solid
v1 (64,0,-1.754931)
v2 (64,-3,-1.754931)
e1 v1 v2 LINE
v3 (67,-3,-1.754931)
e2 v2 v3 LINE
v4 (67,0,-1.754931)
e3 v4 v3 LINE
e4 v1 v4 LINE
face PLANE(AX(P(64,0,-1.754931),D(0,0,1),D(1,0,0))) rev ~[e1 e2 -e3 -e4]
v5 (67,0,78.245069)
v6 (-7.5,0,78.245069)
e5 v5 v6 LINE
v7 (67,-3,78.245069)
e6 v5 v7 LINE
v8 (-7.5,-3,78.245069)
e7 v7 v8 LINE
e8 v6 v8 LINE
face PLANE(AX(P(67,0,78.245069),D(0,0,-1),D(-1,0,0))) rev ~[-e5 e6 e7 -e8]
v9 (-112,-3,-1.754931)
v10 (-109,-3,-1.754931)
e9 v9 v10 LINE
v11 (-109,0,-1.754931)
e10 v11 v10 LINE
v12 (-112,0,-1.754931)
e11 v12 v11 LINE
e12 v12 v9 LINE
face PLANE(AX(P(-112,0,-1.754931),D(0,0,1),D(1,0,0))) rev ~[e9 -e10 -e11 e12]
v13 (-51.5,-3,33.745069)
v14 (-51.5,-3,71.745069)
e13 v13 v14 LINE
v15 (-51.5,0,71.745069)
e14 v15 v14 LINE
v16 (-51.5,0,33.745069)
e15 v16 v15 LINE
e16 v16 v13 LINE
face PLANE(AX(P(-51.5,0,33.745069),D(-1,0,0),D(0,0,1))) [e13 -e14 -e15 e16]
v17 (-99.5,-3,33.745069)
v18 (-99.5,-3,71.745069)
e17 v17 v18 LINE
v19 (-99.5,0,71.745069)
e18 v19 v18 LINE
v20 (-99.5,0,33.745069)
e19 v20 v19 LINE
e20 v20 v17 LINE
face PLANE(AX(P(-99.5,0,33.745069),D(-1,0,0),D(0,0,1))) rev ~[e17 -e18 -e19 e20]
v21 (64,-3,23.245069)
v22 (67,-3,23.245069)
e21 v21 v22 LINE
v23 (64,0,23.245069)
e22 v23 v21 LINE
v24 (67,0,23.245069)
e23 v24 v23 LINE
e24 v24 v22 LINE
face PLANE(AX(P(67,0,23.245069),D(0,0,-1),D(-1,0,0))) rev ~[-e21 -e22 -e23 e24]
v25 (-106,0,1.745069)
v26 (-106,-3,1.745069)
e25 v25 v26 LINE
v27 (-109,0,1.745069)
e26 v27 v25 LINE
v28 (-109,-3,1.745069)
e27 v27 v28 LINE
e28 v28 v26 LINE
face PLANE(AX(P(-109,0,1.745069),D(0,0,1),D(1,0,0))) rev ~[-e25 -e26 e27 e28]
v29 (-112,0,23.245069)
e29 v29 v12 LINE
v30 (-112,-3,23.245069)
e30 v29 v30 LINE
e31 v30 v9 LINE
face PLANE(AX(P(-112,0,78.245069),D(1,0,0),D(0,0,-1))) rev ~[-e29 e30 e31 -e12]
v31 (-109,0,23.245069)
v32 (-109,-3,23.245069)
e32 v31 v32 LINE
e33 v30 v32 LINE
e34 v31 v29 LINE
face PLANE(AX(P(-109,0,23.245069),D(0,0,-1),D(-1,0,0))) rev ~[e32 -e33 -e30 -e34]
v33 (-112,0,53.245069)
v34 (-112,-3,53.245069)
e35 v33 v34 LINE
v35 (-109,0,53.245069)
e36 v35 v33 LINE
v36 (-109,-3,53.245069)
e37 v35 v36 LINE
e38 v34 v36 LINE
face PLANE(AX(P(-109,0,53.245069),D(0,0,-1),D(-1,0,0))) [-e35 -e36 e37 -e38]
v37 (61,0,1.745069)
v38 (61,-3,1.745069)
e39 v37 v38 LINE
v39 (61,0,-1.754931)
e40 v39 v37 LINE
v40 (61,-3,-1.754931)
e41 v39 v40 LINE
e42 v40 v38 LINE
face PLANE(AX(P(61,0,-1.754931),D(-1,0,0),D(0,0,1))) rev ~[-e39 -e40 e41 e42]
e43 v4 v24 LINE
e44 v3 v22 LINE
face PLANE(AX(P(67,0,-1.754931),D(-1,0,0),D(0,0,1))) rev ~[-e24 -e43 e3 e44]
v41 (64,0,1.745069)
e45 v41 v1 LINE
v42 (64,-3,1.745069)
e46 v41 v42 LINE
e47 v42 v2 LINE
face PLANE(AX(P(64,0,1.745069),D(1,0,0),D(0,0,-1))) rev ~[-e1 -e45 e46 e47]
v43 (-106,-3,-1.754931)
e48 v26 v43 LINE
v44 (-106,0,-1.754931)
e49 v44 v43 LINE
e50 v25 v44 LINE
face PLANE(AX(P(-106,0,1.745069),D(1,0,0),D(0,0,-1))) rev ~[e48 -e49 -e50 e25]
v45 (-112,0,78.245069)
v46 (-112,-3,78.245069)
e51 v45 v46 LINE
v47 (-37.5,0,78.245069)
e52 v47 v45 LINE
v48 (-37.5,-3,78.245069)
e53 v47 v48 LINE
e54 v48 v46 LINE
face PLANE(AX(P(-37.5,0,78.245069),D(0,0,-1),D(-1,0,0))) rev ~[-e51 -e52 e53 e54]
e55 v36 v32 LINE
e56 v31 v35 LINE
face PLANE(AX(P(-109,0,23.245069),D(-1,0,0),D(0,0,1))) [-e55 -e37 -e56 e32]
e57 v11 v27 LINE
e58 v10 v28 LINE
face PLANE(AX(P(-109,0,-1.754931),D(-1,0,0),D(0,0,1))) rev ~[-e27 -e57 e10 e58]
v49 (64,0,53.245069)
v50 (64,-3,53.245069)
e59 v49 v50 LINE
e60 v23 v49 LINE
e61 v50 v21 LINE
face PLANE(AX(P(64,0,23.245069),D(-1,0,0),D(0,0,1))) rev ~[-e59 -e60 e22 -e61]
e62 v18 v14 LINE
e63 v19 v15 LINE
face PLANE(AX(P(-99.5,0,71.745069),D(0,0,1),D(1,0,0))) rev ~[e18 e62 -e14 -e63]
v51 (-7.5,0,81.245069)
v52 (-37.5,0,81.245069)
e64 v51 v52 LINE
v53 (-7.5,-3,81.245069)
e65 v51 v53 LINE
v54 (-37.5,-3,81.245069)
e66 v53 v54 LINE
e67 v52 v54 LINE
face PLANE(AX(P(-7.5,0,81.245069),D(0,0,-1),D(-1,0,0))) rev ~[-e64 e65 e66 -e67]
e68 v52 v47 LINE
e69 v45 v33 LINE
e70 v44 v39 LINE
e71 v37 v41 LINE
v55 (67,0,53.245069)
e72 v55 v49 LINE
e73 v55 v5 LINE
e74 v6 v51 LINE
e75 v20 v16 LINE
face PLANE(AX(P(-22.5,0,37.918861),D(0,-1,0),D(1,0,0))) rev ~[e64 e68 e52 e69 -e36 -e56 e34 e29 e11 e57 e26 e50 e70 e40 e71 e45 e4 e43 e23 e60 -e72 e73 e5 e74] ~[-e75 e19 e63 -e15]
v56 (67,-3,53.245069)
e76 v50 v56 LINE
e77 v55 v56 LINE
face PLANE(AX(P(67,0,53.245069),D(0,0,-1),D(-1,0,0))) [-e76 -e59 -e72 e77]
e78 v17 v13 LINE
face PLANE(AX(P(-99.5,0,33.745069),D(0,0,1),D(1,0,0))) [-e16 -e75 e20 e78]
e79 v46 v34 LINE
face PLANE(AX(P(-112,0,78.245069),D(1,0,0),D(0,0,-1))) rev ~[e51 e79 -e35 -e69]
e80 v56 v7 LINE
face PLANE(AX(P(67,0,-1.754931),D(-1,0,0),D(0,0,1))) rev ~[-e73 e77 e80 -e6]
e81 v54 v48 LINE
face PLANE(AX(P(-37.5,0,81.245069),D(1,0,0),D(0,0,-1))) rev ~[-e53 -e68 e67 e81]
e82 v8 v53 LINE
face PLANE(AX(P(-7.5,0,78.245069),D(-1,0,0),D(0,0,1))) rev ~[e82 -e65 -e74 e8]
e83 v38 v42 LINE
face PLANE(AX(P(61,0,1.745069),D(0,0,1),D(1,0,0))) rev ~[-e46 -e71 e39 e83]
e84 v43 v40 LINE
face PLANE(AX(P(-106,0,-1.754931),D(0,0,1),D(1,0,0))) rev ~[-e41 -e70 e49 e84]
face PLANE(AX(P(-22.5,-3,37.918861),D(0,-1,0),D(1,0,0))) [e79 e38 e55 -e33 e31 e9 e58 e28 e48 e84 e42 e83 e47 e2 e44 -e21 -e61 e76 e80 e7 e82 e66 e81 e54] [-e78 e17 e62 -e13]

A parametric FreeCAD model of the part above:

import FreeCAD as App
import Part
import Sketcher
Q = App.Units.Quantity

doc = App.newDocument("Part")
body = doc.addObject("PartDesign::Body", "Body")

# Sketch on XZ plane
sketch1 = body.newObject("Sketcher::SketchObject", "Sketch")
sketch1.AttachmentSupport = (doc.getObject("XZ_Plane"), [""])
sketch1.MapMode = "FlatFace"
sketch1.addGeometry(Part.LineSegment(App.Vector(-37.5, 78.2, 0), App.Vector(-112, 78.2, 0)), False)
sketch1.addGeometry(Part.LineSegment(App.Vector(-112, 78.2, 0), App.Vector(-112, -1.8, 0)), False)
sketch1.addGeometry(Part.LineSegment(App.Vector(-112, -1.8, 0), App.Vector(-109, -1.8, 0)), False)
sketch1.addGeometry(Part.LineSegment(App.Vector(-109, -1.8, 0), App.Vector(-109, 1.7, 0)), False)
sketch1.addGeometry(Part.LineSegment(App.Vector(-109, 1.7, 0), App.Vector(-106, 1.7, 0)), False)
sketch1.addGeometry(Part.LineSegment(App.Vector(-106, 1.7, 0), App.Vector(-106, -1.8, 0)), False)
sketch1.addGeometry(Part.LineSegment(App.Vector(-106, -1.8, 0), App.Vector(61, -1.8, 0)), False)
sketch1.addGeometry(Part.LineSegment(App.Vector(61, -1.8, 0), App.Vector(61, 1.7, 0)), False)
sketch1.addGeometry(Part.LineSegment(App.Vector(61, 1.7, 0), App.Vector(64, 1.7, 0)), False)
sketch1.addGeometry(Part.LineSegment(App.Vector(64, 1.7, 0), App.Vector(64, -1.8, 0)), False)
sketch1.addGeometry(Part.LineSegment(App.Vector(64, -1.8, 0), App.Vector(67, -1.8, 0)), False)
sketch1.addGeometry(Part.LineSegment(App.Vector(67, -1.8, 0), App.Vector(67, 78.2, 0)), False)
sketch1.addGeometry(Part.LineSegment(App.Vector(67, 78.2, 0), App.Vector(-7.5, 78.2, 0)), False)
sketch1.addGeometry(Part.LineSegment(App.Vector(-7.5, 78.2, 0), App.Vector(-7.5, 81.2, 0)), False)
sketch1.addGeometry(Part.LineSegment(App.Vector(-7.5, 81.2, 0), App.Vector(-37.5, 81.2, 0)), False)
sketch1.addGeometry(Part.LineSegment(App.Vector(-37.5, 81.2, 0), App.Vector(-37.5, 78.2, 0)), False)
sketch1.addGeometry(Part.LineSegment(App.Vector(-51.5, 33.7, 0), App.Vector(-99.5, 33.7, 0)), False)
sketch1.addGeometry(Part.LineSegment(App.Vector(-99.5, 33.7, 0), App.Vector(-99.5, 71.7, 0)), False)
sketch1.addGeometry(Part.LineSegment(App.Vector(-99.5, 71.7, 0), App.Vector(-51.5, 71.7, 0)), False)
sketch1.addGeometry(Part.LineSegment(App.Vector(-51.5, 71.7, 0), App.Vector(-51.5, 33.7, 0)), False)
sketch1.addConstraint(Sketcher.Constraint("Coincident", 0, 2, 1, 1))
sketch1.addConstraint(Sketcher.Constraint("Coincident", 1, 2, 2, 1))
sketch1.addConstraint(Sketcher.Constraint("Coincident", 2, 2, 3, 1))
sketch1.addConstraint(Sketcher.Constraint("Coincident", 3, 2, 4, 1))
sketch1.addConstraint(Sketcher.Constraint("Coincident", 4, 2, 5, 1))
sketch1.addConstraint(Sketcher.Constraint("Coincident", 5, 2, 6, 1))
sketch1.addConstraint(Sketcher.Constraint("Coincident", 6, 2, 7, 1))
sketch1.addConstraint(Sketcher.Constraint("Coincident", 7, 2, 8, 1))
sketch1.addConstraint(Sketcher.Constraint("Coincident", 8, 2, 9, 1))
sketch1.addConstraint(Sketcher.Constraint("Coincident", 9, 2, 10, 1))
sketch1.addConstraint(Sketcher.Constraint("Coincident", 10, 2, 11, 1))
sketch1.addConstraint(Sketcher.Constraint("Coincident", 11, 2, 12, 1))
sketch1.addConstraint(Sketcher.Constraint("Coincident", 12, 2, 13, 1))
sketch1.addConstraint(Sketcher.Constraint("Coincident", 13, 2, 14, 1))
sketch1.addConstraint(Sketcher.Constraint("Coincident", 14, 2, 15, 1))
sketch1.addConstraint(Sketcher.Constraint("Coincident", 15, 2, 0, 1))
sketch1.addConstraint(Sketcher.Constraint("Coincident", 16, 2, 17, 1))
sketch1.addConstraint(Sketcher.Constraint("Coincident", 17, 2, 18, 1))
sketch1.addConstraint(Sketcher.Constraint("Coincident", 18, 2, 19, 1))
sketch1.addConstraint(Sketcher.Constraint("Coincident", 19, 2, 16, 1))
sketch1.addConstraint(Sketcher.Constraint("Horizontal", 0))
sketch1.addConstraint(Sketcher.Constraint("Vertical", 1))
sketch1.addConstraint(Sketcher.Constraint("Horizontal", 2))
sketch1.addConstraint(Sketcher.Constraint("Vertical", 3))
sketch1.addConstraint(Sketcher.Constraint("Horizontal", 4))
sketch1.addConstraint(Sketcher.Constraint("Vertical", 5))
sketch1.addConstraint(Sketcher.Constraint("Horizontal", 6))
sketch1.addConstraint(Sketcher.Constraint("Vertical", 7))
sketch1.addConstraint(Sketcher.Constraint("Horizontal", 8))
sketch1.addConstraint(Sketcher.Constraint("Vertical", 9))
sketch1.addConstraint(Sketcher.Constraint("Horizontal", 10))
sketch1.addConstraint(Sketcher.Constraint("Vertical", 11))
sketch1.addConstraint(Sketcher.Constraint("Horizontal", 12))
sketch1.addConstraint(Sketcher.Constraint("Vertical", 13))
sketch1.addConstraint(Sketcher.Constraint("Horizontal", 14))
sketch1.addConstraint(Sketcher.Constraint("Vertical", 15))
sketch1.addConstraint(Sketcher.Constraint("Horizontal", 16))
sketch1.addConstraint(Sketcher.Constraint("Vertical", 17))
sketch1.addConstraint(Sketcher.Constraint("Horizontal", 18))
sketch1.addConstraint(Sketcher.Constraint("Vertical", 19))
sketch1.addConstraint(Sketcher.Constraint("Horizontal", 2, 2, 5, 2))
sketch1.addConstraint(Sketcher.Constraint("Horizontal", 4, 2, 7, 2))
sketch1.addConstraint(Sketcher.Constraint("Horizontal", 6, 2, 9, 2))
sketch1.addConstraint(Sketcher.Constraint("Horizontal", 0, 2, 11, 2))
sketch1.addConstraint(Sketcher.Constraint("Equal", 2, 4))
sketch1.addConstraint(Sketcher.Constraint("Equal", 4, 8))
sketch1.addConstraint(Sketcher.Constraint("Equal", 8, 10))
sketch1.addConstraint(Sketcher.Constraint("Equal", 0, 12))
sketch1.addConstraint(Sketcher.Constraint("Equal", 10, 13))
sketch1.addConstraint(Sketcher.Constraint("DistanceX", 2, 1, 2, 2, Q("3 mm")))
sketch1.addConstraint(Sketcher.Constraint("DistanceX", 6, 1, 6, 2, Q("167 mm")))
sketch1.addConstraint(Sketcher.Constraint("DistanceX", 14, 2, 14, 1, Q("30 mm")))
sketch1.addConstraint(Sketcher.Constraint("DistanceX", 16, 2, 16, 1, Q("48 mm")))
sketch1.addConstraint(Sketcher.Constraint("DistanceY", 1, 2, 1, 1, Q("80 mm")))
sketch1.addConstraint(Sketcher.Constraint("DistanceY", 17, 1, 17, 2, Q("38 mm")))
sketch1.addConstraint(Sketcher.Constraint("DistanceY", 3, 1, 3, 2, Q("3.5 mm")))
sketch1.addConstraint(Sketcher.Constraint("DistanceX", 0, 2, -1, 1, Q("112 mm")))
sketch1.addConstraint(Sketcher.Constraint("DistanceY", 4, 2, 16, 2, Q("32 mm")))
sketch1.addConstraint(Sketcher.Constraint("DistanceX", 17, 2, 15, 2, Q("62 mm")))
sketch1.addConstraint(Sketcher.Constraint("DistanceY", -1, 1, 0, 2, Q("78.245069 mm")))
pad1 = body.newObject("PartDesign::Pad", "Pad")
pad1.Profile = sketch1
pad1.Length = 3

# Sketch on XZ plane
sketch2 = body.newObject("Sketcher::SketchObject", "Sketch001")
sketch2.AttachmentSupport = (doc.getObject("XZ_Plane"), [""])
sketch2.MapMode = "FlatFace"
sketch2.addGeometry(Part.LineSegment(App.Vector(67, 53.2, 0), App.Vector(67, 23.2, 0)), False)
sketch2.addGeometry(Part.LineSegment(App.Vector(67, 23.2, 0), App.Vector(64, 23.2, 0)), False)
sketch2.addGeometry(Part.LineSegment(App.Vector(64, 23.2, 0), App.Vector(64, 53.2, 0)), False)
sketch2.addGeometry(Part.LineSegment(App.Vector(64, 53.2, 0), App.Vector(67, 53.2, 0)), False)
sketch2.addGeometry(Part.LineSegment(App.Vector(-109, 53.2, 0), App.Vector(-109, 23.2, 0)), False)
sketch2.addGeometry(Part.LineSegment(App.Vector(-109, 23.2, 0), App.Vector(-112, 23.2, 0)), False)
sketch2.addGeometry(Part.LineSegment(App.Vector(-112, 23.2, 0), App.Vector(-112, 53.2, 0)), False)
sketch2.addGeometry(Part.LineSegment(App.Vector(-112, 53.2, 0), App.Vector(-109, 53.2, 0)), False)
sketch2.addConstraint(Sketcher.Constraint("Coincident", 0, 2, 1, 1))
sketch2.addConstraint(Sketcher.Constraint("Coincident", 1, 2, 2, 1))
sketch2.addConstraint(Sketcher.Constraint("Coincident", 2, 2, 3, 1))
sketch2.addConstraint(Sketcher.Constraint("Coincident", 3, 2, 0, 1))
sketch2.addConstraint(Sketcher.Constraint("Coincident", 4, 2, 5, 1))
sketch2.addConstraint(Sketcher.Constraint("Coincident", 5, 2, 6, 1))
sketch2.addConstraint(Sketcher.Constraint("Coincident", 6, 2, 7, 1))
sketch2.addConstraint(Sketcher.Constraint("Coincident", 7, 2, 4, 1))
sketch2.addConstraint(Sketcher.Constraint("Vertical", 0))
sketch2.addConstraint(Sketcher.Constraint("Horizontal", 1))
sketch2.addConstraint(Sketcher.Constraint("Vertical", 2))
sketch2.addConstraint(Sketcher.Constraint("Horizontal", 3))
sketch2.addConstraint(Sketcher.Constraint("Vertical", 4))
sketch2.addConstraint(Sketcher.Constraint("Horizontal", 5))
sketch2.addConstraint(Sketcher.Constraint("Vertical", 6))
sketch2.addConstraint(Sketcher.Constraint("Horizontal", 7))
sketch2.addConstraint(Sketcher.Constraint("Horizontal", 1, 2, 4, 2))
sketch2.addConstraint(Sketcher.Constraint("Horizontal", 3, 2, 6, 2))
sketch2.addConstraint(Sketcher.Constraint("Equal", 3, 5))
sketch2.addConstraint(Sketcher.Constraint("DistanceX", 1, 2, 1, 1, Q("3 mm")))
sketch2.addConstraint(Sketcher.Constraint("DistanceY", 0, 2, 0, 1, Q("30 mm")))
sketch2.addConstraint(Sketcher.Constraint("DistanceX", -1, 1, 0, 2, Q("67 mm")))
sketch2.addConstraint(Sketcher.Constraint("DistanceX", 4, 2, -1, 1, Q("109 mm")))
sketch2.addConstraint(Sketcher.Constraint("DistanceY", -1, 1, 0, 2, Q("23.245069 mm")))
pocket1 = body.newObject("PartDesign::Pocket", "Pocket")
pocket1.Profile = sketch2
pocket1.Length = 25
pocket1.Reversed = True

doc.recompute()
